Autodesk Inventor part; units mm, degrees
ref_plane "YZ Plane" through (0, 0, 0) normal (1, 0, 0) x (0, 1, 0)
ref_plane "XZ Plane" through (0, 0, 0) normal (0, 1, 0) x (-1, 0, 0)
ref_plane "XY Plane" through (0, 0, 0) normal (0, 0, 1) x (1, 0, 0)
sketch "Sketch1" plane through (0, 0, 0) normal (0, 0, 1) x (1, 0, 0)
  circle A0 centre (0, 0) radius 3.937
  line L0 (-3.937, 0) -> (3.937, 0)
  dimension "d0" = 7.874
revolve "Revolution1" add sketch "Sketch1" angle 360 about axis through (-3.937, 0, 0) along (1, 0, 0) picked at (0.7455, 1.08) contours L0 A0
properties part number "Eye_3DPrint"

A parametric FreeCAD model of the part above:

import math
import FreeCAD as App
import Part
import Sketcher
Q = App.Units.Quantity

doc = App.newDocument("Part")
body = doc.addObject("PartDesign::Body", "Body")

# Sketch on XY plane
sketch1 = body.newObject("Sketcher::SketchObject", "Sketch")
sketch1.AttachmentSupport = (doc.getObject("XY_Plane"), [""])
sketch1.MapMode = "FlatFace"
sketch1.addGeometry([
    Part.LineSegment(App.Vector(-3.9, 0, 0), App.Vector(3.9, 0, 0)),
    Part.ArcOfCircle(Part.Circle(App.Vector(0, 0, 0), App.Vector(0, 0, 1), 3.9), math.radians(0), math.radians(180)),
], False)
sketch1.addConstraint([
    Sketcher.Constraint("Coincident", 0, 1, 1, 2),
    Sketcher.Constraint("Coincident", 1, 1, 0, 2),
    Sketcher.Constraint("Horizontal", 0),
    Sketcher.Constraint("Coincident", 1, 3, -1, 1),
    Sketcher.Constraint("PointOnObject", 0, 1, -1),
    Sketcher.Constraint("Radius", 1, Q("0.155 in")),
])
revolution = body.newObject("PartDesign::Revolution", "Revolution")
revolution.Profile = sketch1
revolution.ReferenceAxis = (sketch1, ["H_Axis"])
revolution.Angle = 360

doc.recompute()
